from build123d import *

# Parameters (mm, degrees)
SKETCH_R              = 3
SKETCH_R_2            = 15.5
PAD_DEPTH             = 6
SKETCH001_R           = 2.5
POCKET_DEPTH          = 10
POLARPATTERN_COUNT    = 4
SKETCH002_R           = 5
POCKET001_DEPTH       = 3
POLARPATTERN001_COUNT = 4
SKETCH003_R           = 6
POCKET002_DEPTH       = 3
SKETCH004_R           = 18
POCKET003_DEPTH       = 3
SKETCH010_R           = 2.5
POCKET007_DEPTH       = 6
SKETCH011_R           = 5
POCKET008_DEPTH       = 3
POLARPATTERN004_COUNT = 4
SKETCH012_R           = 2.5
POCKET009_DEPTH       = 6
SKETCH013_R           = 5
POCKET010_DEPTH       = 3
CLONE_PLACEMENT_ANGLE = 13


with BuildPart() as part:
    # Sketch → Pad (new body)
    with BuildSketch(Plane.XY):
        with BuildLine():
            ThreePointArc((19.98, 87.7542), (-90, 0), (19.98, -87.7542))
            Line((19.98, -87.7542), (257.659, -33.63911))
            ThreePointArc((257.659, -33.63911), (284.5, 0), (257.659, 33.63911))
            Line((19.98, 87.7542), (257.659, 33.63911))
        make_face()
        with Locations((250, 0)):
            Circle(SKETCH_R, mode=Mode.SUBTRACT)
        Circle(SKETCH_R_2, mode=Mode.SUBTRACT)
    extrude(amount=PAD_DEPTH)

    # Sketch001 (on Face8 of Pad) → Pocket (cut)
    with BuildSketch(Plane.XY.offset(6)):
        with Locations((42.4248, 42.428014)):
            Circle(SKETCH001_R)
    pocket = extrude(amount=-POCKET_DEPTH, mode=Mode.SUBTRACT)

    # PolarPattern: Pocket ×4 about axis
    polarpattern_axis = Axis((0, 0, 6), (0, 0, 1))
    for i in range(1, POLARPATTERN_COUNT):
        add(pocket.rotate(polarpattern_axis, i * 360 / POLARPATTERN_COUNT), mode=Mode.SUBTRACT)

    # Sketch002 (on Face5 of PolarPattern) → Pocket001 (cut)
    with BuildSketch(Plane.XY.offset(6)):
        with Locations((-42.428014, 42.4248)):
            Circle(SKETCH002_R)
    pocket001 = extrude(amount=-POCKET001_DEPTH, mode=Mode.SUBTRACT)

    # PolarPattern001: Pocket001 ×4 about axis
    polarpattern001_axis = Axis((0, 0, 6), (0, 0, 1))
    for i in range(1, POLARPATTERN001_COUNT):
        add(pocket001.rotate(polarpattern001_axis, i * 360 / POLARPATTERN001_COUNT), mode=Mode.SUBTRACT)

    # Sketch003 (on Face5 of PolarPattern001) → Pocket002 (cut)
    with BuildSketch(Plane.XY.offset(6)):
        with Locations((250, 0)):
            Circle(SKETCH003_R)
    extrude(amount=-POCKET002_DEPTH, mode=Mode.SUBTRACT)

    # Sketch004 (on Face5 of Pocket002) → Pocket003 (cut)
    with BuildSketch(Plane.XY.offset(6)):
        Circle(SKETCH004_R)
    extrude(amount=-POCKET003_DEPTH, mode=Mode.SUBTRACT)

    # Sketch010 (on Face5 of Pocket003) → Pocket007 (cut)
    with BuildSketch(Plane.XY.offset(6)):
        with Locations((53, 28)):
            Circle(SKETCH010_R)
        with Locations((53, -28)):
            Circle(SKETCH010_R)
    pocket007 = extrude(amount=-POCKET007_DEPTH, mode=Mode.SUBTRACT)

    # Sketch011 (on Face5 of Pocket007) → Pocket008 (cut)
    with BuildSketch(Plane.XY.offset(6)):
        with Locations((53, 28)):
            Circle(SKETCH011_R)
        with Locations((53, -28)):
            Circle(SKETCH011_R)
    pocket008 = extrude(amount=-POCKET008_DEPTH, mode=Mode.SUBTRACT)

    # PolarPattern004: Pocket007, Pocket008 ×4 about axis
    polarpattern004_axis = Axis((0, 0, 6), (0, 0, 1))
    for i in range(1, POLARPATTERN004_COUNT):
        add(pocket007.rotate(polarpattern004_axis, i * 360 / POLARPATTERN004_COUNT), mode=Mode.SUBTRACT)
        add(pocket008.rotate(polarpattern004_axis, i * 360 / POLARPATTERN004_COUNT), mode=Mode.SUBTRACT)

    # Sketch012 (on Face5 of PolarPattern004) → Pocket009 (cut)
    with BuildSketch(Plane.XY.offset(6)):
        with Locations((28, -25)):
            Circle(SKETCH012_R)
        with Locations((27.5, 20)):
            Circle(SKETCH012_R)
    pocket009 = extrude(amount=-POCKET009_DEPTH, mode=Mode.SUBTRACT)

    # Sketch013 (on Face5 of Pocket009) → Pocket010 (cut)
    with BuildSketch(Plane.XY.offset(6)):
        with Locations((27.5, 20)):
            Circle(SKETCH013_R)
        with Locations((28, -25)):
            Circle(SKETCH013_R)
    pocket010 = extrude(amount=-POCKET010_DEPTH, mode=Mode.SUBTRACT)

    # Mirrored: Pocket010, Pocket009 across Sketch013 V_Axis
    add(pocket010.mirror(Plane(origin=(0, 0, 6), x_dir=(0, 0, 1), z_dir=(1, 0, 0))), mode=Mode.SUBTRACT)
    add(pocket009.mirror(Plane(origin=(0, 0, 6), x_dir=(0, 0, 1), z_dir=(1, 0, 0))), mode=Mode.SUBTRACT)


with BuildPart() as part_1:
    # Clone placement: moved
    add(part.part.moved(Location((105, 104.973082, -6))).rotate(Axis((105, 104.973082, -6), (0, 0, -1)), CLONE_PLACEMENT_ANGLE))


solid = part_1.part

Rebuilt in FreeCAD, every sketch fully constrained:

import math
import FreeCAD as App
import Part
import Sketcher
from FreeCAD import Vector
Q = App.Units.Quantity

doc = App.newDocument("Part")
body = doc.addObject("PartDesign::Body", "Body")

sketch1 = doc.addObject("Sketcher::SketchObject", "Sketch")
body.addObject(sketch1)
sketch1.AttachmentSupport = (doc.XY_Plane, [""])
sketch1.MapMode = "FlatFace"
sketch1.addGeometry([
    Part.ArcOfCircle(Part.Circle(Vector(0, 0, 0), Vector(0, 0, 1), 90), math.radians(77), math.radians(283)),
    Part.LineSegment(Vector(20, -87.8, 0), Vector(257.7, -33.6, 0)),
    Part.ArcOfCircle(Part.Circle(Vector(250, 0, 0), Vector(0, 0, 1), 34.5), math.radians(-77), math.radians(77)),
    Part.LineSegment(Vector(257.7, 33.6, 0), Vector(20, 87.8, 0)),
    Part.Circle(Vector(0, 0, 0), Vector(0, 0, 1), 15.5),
    Part.Circle(Vector(250, 0, 0), Vector(0, 0, 1), 3),
], False)
sketch1.addConstraint([
    Sketcher.Constraint("Tangent", 0, 2, 1, 1),
    Sketcher.Constraint("Tangent", 1, 2, 2, 1),
    Sketcher.Constraint("Tangent", 2, 2, 3, 1),
    Sketcher.Constraint("Tangent", 3, 2, 0, 1),
    Sketcher.Constraint("Coincident", 0, 3, -1, 1),
    Sketcher.Constraint("Coincident", 4, 3, -1, 1),
    Sketcher.Constraint("Coincident", 5, 3, 2, 3),
    Sketcher.Constraint("PointOnObject", 2, 3, -1),
    Sketcher.Constraint("Diameter", 4, Q("31 mm")),
    Sketcher.Constraint("Diameter", 5, Q("6 mm")),
    Sketcher.Constraint("Radius", 0, Q("90 mm")),
    Sketcher.Constraint("Radius", 2, Q("34.5 mm")),
    Sketcher.Constraint("DistanceX", -1, 1, 2, 3, Q("250 mm")),
])
pad1 = doc.addObject("PartDesign::Pad", "Pad")
body.addObject(pad1)
pad1.Profile = sketch1
pad1.Length = 6

sketch2 = doc.addObject("Sketcher::SketchObject", "Sketch001")
body.addObject(sketch2)
sketch2.AttachmentSupport = (doc.XY_Plane, [""])
sketch2.MapMode = "FlatFace"
sketch2.AttachmentOffset = App.Placement(Vector(0, 0, 6), App.Rotation())
sketch2.addGeometry(Part.Circle(Vector(42.4, 42.4, 0), Vector(0, 0, 1), 2.5), False)
sketch2.addConstraint([
    Sketcher.Constraint("Diameter", 0, Q("5 mm")),
    Sketcher.Constraint("DistanceX", -1, 1, 0, 3, Q("42.4248 mm")),
    Sketcher.Constraint("DistanceY", -1, 1, 0, 3, Q("42.428014 mm")),
])
pocket1 = doc.addObject("PartDesign::Pocket", "Pocket")
body.addObject(pocket1)
pocket1.Profile = sketch2
pocket1.Length = 10
doc.recompute()

polarpattern = doc.addObject("PartDesign::PolarPattern", "PolarPattern")
body.addObject(polarpattern)
polarpattern.Originals = [pocket1]
polarpattern.Axis = (doc.Z_Axis, [""])
polarpattern.Angle = 360
polarpattern.Occurrences = 4
body.Tip = polarpattern

sketch3 = doc.addObject("Sketcher::SketchObject", "Sketch002")
body.addObject(sketch3)
sketch3.AttachmentSupport = (doc.XY_Plane, [""])
sketch3.MapMode = "FlatFace"
sketch3.AttachmentOffset = App.Placement(Vector(0, 0, 6), App.Rotation())
sketch3.addGeometry(Part.Circle(Vector(-42, 42, 0), Vector(0, 0, 1), 5), False)
sketch3.addConstraint([
    Sketcher.Constraint("Diameter", 0, Q("10 mm")),
    Sketcher.Constraint("DistanceY", -1, 1, 0, 3, Q("42.4248 mm")),
    Sketcher.Constraint("DistanceX", 0, 3, -1, 1, Q("42.428014 mm")),
])
pocket2 = doc.addObject("PartDesign::Pocket", "Pocket001")
body.addObject(pocket2)
pocket2.Profile = sketch3
pocket2.Length = 3
doc.recompute()

polarpattern2 = doc.addObject("PartDesign::PolarPattern", "PolarPattern001")
body.addObject(polarpattern2)
polarpattern2.Originals = [pocket2]
polarpattern2.Axis = (doc.Z_Axis, [""])
polarpattern2.Angle = 360
polarpattern2.Occurrences = 4
body.Tip = polarpattern2

sketch4 = doc.addObject("Sketcher::SketchObject", "Sketch003")
body.addObject(sketch4)
sketch4.AttachmentSupport = (doc.XY_Plane, [""])
sketch4.MapMode = "FlatFace"
sketch4.AttachmentOffset = App.Placement(Vector(0, 0, 6), App.Rotation())
sketch4.addGeometry(Part.Circle(Vector(250, 0, 0), Vector(0, 0, 1), 6), False)
sketch4.addConstraint([
    Sketcher.Constraint("PointOnObject", 0, 3, -1),
    Sketcher.Constraint("Diameter", 0, Q("12 mm")),
    Sketcher.Constraint("DistanceX", -1, 1, 0, 3, Q("250 mm")),
])
pocket3 = doc.addObject("PartDesign::Pocket", "Pocket002")
body.addObject(pocket3)
pocket3.Profile = sketch4
pocket3.Length = 3

sketch5 = doc.addObject("Sketcher::SketchObject", "Sketch004")
body.addObject(sketch5)
sketch5.AttachmentSupport = (doc.XY_Plane, [""])
sketch5.MapMode = "FlatFace"
sketch5.AttachmentOffset = App.Placement(Vector(0, 0, 6), App.Rotation())
sketch5.addGeometry(Part.Circle(Vector(0, 0, 0), Vector(0, 0, 1), 18), False)
sketch5.addConstraint([
    Sketcher.Constraint("Coincident", 0, 3, -1, 1),
    Sketcher.Constraint("Diameter", 0, Q("36 mm")),
])
pocket4 = doc.addObject("PartDesign::Pocket", "Pocket003")
body.addObject(pocket4)
pocket4.Profile = sketch5
pocket4.Length = 3

sketch6 = doc.addObject("Sketcher::SketchObject", "Sketch005")
body.addObject(sketch6)
sketch6.AttachmentSupport = (doc.XY_Plane, [""])
sketch6.MapMode = "FlatFace"
sketch6.AttachmentOffset = App.Placement(Vector(0, 0, 6), App.Rotation())
sketch6.addGeometry([
    Part.Circle(Vector(53, 28, 0), Vector(0, 0, 1), 2.5),
    Part.Circle(Vector(53, -28, 0), Vector(0, 0, 1), 2.5),
], False)
sketch6.addConstraint([
    Sketcher.Constraint("Equal", 0, 1),
    Sketcher.Constraint("Symmetric", 0, 3, 1, 3, -1),
    Sketcher.Constraint("Diameter", 0, Q("5 mm")),
    Sketcher.Constraint("DistanceX", -1, 1, 0, 3, Q("53 mm")),
    Sketcher.Constraint("DistanceY", -1, 1, 0, 3, Q("28 mm")),
])
pocket5 = doc.addObject("PartDesign::Pocket", "Pocket004")
body.addObject(pocket5)
pocket5.Profile = sketch6
pocket5.Length = 6

sketch7 = doc.addObject("Sketcher::SketchObject", "Sketch006")
body.addObject(sketch7)
sketch7.AttachmentSupport = (doc.XY_Plane, [""])
sketch7.MapMode = "FlatFace"
sketch7.AttachmentOffset = App.Placement(Vector(0, 0, 6), App.Rotation())
sketch7.addGeometry([
    Part.Circle(Vector(53, 28, 0), Vector(0, 0, 1), 5),
    Part.Circle(Vector(53, -28, 0), Vector(0, 0, 1), 5),
], False)
sketch7.addConstraint([
    Sketcher.Constraint("Equal", 0, 1),
    Sketcher.Constraint("Symmetric", 0, 3, 1, 3, -1),
    Sketcher.Constraint("Diameter", 0, Q("10 mm")),
    Sketcher.Constraint("DistanceX", -1, 1, 0, 3, Q("53 mm")),
    Sketcher.Constraint("DistanceY", -1, 1, 0, 3, Q("28 mm")),
])
pocket6 = doc.addObject("PartDesign::Pocket", "Pocket005")
body.addObject(pocket6)
pocket6.Profile = sketch7
pocket6.Length = 3
doc.recompute()

polarpattern3 = doc.addObject("PartDesign::PolarPattern", "PolarPattern002")
body.addObject(polarpattern3)
polarpattern3.Originals = [pocket5, pocket6]
polarpattern3.Axis = (doc.Z_Axis, [""])
polarpattern3.Angle = 360
polarpattern3.Occurrences = 4
body.Tip = polarpattern3

sketch8 = doc.addObject("Sketcher::SketchObject", "Sketch007")
body.addObject(sketch8)
sketch8.AttachmentSupport = (doc.XY_Plane, [""])
sketch8.MapMode = "FlatFace"
sketch8.AttachmentOffset = App.Placement(Vector(0, 0, 6), App.Rotation())
sketch8.addGeometry([
    Part.Circle(Vector(28, -25, 0), Vector(0, 0, 1), 2.5),
    Part.Circle(Vector(27.5, 20, 0), Vector(0, 0, 1), 2.5),
], False)
sketch8.addConstraint([
    Sketcher.Constraint("Equal", 0, 1),
    Sketcher.Constraint("Diameter", 0, Q("5 mm")),
    Sketcher.Constraint("DistanceX", -1, 1, 0, 3, Q("28 mm")),
    Sketcher.Constraint("DistanceY", 0, 3, -1, 1, Q("25 mm")),
    Sketcher.Constraint("DistanceY", -1, 1, 1, 3, Q("20 mm")),
    Sketcher.Constraint("DistanceX", -1, 1, 1, 3, Q("27.5 mm")),
])
pocket7 = doc.addObject("PartDesign::Pocket", "Pocket006")
body.addObject(pocket7)
pocket7.Profile = sketch8
pocket7.Length = 6

sketch9 = doc.addObject("Sketcher::SketchObject", "Sketch008")
body.addObject(sketch9)
sketch9.AttachmentSupport = (doc.XY_Plane, [""])
sketch9.MapMode = "FlatFace"
sketch9.AttachmentOffset = App.Placement(Vector(0, 0, 6), App.Rotation())
sketch9.addGeometry([
    Part.Circle(Vector(28, 20, 0), Vector(0, 0, 1), 5),
    Part.Circle(Vector(28, -25, 0), Vector(0, 0, 1), 5),
], False)
sketch9.addConstraint([
    Sketcher.Constraint("Equal", 0, 1),
    Sketcher.Constraint("Diameter", 0, Q("10 mm")),
    Sketcher.Constraint("DistanceY", -1, 1, 0, 3, Q("20 mm")),
    Sketcher.Constraint("DistanceX", -1, 1, 1, 3, Q("28 mm")),
    Sketcher.Constraint("DistanceY", 1, 3, -1, 1, Q("25 mm")),
    Sketcher.Constraint("DistanceX", -1, 1, 0, 3, Q("27.5 mm")),
])
pocket8 = doc.addObject("PartDesign::Pocket", "Pocket007")
body.addObject(pocket8)
pocket8.Profile = sketch9
pocket8.Length = 3
doc.recompute()

mirrored = doc.addObject("PartDesign::Mirrored", "Mirrored")
body.addObject(mirrored)
mirrored.Originals = [pocket8, pocket7]
mirrored.MirrorPlane = (doc.YZ_Plane, [""])
body.Tip = mirrored
body2 = doc.addObject("PartDesign::Body", "Body001")
doc.recompute()

body.Placement = App.Placement(Vector(105, 104.973082, -6), App.Rotation(Vector(0, 0, -1), 13))
boolean = doc.addObject("PartDesign::Boolean", "Boolean")
body2.addObject(boolean)
boolean.Type = "Fuse"
boolean.addObjects([body])

doc.recompute()
